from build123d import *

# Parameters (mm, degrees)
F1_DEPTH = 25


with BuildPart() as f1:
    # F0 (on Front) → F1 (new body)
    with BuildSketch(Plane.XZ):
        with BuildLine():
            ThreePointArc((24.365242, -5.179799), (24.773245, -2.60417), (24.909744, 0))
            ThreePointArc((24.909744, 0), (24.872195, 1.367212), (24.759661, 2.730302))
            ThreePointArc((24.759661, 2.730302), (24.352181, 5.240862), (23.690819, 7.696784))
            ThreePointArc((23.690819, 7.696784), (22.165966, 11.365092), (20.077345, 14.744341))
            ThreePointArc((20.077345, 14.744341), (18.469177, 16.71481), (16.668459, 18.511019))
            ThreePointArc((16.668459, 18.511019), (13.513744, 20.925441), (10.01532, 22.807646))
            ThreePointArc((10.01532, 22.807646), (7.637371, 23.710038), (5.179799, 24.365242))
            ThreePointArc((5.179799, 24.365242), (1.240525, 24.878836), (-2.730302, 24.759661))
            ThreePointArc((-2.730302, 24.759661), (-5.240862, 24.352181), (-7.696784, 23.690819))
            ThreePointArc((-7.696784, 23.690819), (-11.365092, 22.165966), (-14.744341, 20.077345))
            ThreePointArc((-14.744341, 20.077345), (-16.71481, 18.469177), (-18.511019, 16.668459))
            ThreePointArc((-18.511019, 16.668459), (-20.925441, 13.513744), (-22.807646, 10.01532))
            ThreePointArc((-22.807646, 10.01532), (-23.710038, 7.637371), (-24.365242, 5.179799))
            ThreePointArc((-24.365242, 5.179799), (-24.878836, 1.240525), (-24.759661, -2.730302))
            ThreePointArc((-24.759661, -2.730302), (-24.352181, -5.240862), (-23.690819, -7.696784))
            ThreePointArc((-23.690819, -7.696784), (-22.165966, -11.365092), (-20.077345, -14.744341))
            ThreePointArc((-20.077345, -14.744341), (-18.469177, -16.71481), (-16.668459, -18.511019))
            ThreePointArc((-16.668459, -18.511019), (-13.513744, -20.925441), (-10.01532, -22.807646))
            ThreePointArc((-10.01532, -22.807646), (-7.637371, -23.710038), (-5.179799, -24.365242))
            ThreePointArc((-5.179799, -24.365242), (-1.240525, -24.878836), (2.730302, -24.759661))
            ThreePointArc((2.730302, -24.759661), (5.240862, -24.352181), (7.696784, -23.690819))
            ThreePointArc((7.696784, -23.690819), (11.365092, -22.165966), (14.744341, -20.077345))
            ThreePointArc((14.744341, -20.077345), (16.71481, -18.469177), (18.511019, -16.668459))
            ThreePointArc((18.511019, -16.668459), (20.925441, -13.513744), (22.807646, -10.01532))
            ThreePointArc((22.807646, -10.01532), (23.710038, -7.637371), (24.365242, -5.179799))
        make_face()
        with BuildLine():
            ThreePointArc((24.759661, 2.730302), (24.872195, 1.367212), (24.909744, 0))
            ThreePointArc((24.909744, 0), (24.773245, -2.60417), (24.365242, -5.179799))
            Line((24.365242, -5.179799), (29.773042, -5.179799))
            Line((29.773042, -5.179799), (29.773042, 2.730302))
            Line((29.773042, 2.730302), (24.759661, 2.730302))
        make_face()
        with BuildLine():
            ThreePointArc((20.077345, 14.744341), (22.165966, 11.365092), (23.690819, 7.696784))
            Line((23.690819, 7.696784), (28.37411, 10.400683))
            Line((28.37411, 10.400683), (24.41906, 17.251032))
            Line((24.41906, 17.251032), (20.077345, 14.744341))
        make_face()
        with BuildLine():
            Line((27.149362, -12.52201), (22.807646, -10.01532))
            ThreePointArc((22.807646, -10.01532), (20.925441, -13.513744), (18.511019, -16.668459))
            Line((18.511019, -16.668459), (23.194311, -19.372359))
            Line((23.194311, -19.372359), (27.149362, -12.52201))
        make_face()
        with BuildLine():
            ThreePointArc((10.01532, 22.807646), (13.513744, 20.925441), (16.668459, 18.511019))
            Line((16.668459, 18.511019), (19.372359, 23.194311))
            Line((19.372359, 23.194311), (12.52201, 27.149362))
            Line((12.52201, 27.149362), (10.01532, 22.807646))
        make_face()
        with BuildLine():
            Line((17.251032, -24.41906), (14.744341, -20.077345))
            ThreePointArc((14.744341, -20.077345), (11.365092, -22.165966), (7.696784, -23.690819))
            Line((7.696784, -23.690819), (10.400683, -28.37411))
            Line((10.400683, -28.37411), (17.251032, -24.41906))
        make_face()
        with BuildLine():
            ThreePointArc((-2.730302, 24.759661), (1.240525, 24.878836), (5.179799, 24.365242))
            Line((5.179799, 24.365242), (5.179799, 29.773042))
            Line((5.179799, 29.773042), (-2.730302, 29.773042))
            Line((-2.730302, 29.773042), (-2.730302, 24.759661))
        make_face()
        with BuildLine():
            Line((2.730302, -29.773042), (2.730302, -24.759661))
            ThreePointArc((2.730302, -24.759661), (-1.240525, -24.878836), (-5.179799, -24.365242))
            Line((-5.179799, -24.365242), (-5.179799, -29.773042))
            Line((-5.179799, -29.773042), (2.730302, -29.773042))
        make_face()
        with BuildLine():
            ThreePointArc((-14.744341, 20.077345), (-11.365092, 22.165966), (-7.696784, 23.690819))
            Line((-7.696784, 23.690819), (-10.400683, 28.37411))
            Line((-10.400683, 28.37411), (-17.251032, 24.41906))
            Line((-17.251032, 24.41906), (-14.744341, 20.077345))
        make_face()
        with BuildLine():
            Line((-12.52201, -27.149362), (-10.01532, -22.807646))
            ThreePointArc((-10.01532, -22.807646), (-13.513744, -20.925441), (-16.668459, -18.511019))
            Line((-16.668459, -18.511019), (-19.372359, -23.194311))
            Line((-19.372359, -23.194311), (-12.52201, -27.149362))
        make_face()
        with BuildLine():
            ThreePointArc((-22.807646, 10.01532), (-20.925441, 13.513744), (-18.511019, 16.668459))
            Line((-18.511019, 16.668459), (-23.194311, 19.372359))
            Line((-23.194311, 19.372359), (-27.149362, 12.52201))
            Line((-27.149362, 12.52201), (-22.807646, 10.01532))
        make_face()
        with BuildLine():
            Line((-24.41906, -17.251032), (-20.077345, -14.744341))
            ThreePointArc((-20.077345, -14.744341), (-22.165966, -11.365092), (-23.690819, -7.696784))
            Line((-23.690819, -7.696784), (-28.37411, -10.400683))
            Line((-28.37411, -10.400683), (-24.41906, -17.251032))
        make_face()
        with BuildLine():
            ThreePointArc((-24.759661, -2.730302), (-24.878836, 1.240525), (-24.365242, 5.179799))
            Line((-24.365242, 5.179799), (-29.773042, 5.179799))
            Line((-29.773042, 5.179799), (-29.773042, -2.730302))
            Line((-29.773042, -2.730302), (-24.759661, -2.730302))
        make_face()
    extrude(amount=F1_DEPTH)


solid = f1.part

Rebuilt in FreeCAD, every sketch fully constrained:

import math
import FreeCAD as App
import Part
import Sketcher
from FreeCAD import Vector
Q = App.Units.Quantity

doc = App.newDocument("Part")
body = doc.addObject("PartDesign::Body", "Body")

# Sketch on XZ plane
sketch1 = body.newObject("Sketcher::SketchObject", "Sketch")
sketch1.AttachmentSupport = (doc.getObject("XZ_Plane"), [""])
sketch1.MapMode = "FlatFace"
sketch1.addGeometry([
    Part.ArcOfCircle(Part.Circle(Vector(-0.000081, -0.000015, 0), Vector(0, 0, 1), 24.909826), math.radians(6.29272), math.radians(17.99816)),  # 0
    Part.LineSegment(Vector(23.690819, 7.696784, 0), Vector(28.37411, 10.400683, 0)),  # 1
    Part.LineSegment(Vector(28.37411, 10.400683, 0), Vector(24.41906, 17.251032, 0)),  # 2
    Part.LineSegment(Vector(24.41906, 17.251032, 0), Vector(20.077345, 14.744341, 0)),  # 3
    Part.ArcOfCircle(Part.Circle(Vector(0.000032, 0.000026, 0), Vector(0, 0, 1), 24.909704), math.radians(36.292701), math.radians(47.998199)),  # 4
    Part.LineSegment(Vector(16.668459, 18.511019, 0), Vector(19.372359, 23.194311, 0)),  # 5
    Part.LineSegment(Vector(19.372359, 23.194311, 0), Vector(12.52201, 27.149362, 0)),  # 6
    Part.LineSegment(Vector(12.52201, 27.149362, 0), Vector(10.01532, 22.807646, 0)),  # 7
    Part.ArcOfCircle(Part.Circle(Vector(-0.000005, -0.00002, 0), Vector(0, 0, 1), 24.909764), math.radians(66.292714), math.radians(77.998183)),  # 8
    Part.LineSegment(Vector(5.179799, 24.365242, 0), Vector(5.179799, 29.773042, 0)),  # 9
    Part.LineSegment(Vector(5.179799, 29.773042, 0), Vector(-2.730302, 29.773042, 0)),  # 10
    Part.LineSegment(Vector(-2.730302, 29.773042, 0), Vector(-2.730302, 24.759661, 0)),  # 11
    Part.ArcOfCircle(Part.Circle(Vector(0.000015, -0.000081, 0), Vector(0, 0, 1), 24.909826), math.radians(96.29272), math.radians(107.99816)),  # 12
    Part.LineSegment(Vector(-7.696784, 23.690819, 0), Vector(-10.400683, 28.37411, 0)),  # 13
    Part.LineSegment(Vector(-10.400683, 28.37411, 0), Vector(-17.251032, 24.41906, 0)),  # 14
    Part.LineSegment(Vector(-17.251032, 24.41906, 0), Vector(-14.744341, 20.077345, 0)),  # 15
    Part.ArcOfCircle(Part.Circle(Vector(-0.000026, 0.000032, 0), Vector(0, 0, 1), 24.909704), math.radians(126.292701), math.radians(137.998199)),  # 16
    Part.LineSegment(Vector(-18.511019, 16.668459, 0), Vector(-23.194311, 19.372359, 0)),  # 17
    Part.LineSegment(Vector(-23.194311, 19.372359, 0), Vector(-27.149362, 12.52201, 0)),  # 18
    Part.LineSegment(Vector(-27.149362, 12.52201, 0), Vector(-22.807646, 10.01532, 0)),  # 19
    Part.ArcOfCircle(Part.Circle(Vector(0.00002, -0.000005, 0), Vector(0, 0, 1), 24.909764), math.radians(156.292714), math.radians(167.998183)),  # 20
    Part.LineSegment(Vector(-24.365242, 5.179799, 0), Vector(-29.773042, 5.179799, 0)),  # 21
    Part.LineSegment(Vector(-29.773042, 5.179799, 0), Vector(-29.773042, -2.730302, 0)),  # 22
    Part.LineSegment(Vector(-29.773042, -2.730302, 0), Vector(-24.759661, -2.730302, 0)),  # 23
    Part.ArcOfCircle(Part.Circle(Vector(0.000081, 0.000015, 0), Vector(0, 0, 1), 24.909826), math.radians(-173.70728), math.radians(-162.00184)),  # 24
    Part.LineSegment(Vector(-23.690819, -7.696784, 0), Vector(-28.37411, -10.400683, 0)),  # 25
    Part.LineSegment(Vector(-28.37411, -10.400683, 0), Vector(-24.41906, -17.251032, 0)),  # 26
    Part.LineSegment(Vector(-24.41906, -17.251032, 0), Vector(-20.077345, -14.744341, 0)),  # 27
    Part.ArcOfCircle(Part.Circle(Vector(-0.000032, -0.000026, 0), Vector(0, 0, 1), 24.909704), math.radians(-143.707299), math.radians(-132.001801)),  # 28
    Part.LineSegment(Vector(-16.668459, -18.511019, 0), Vector(-19.372359, -23.194311, 0)),  # 29
    Part.LineSegment(Vector(-19.372359, -23.194311, 0), Vector(-12.52201, -27.149362, 0)),  # 30
    Part.LineSegment(Vector(-12.52201, -27.149362, 0), Vector(-10.01532, -22.807646, 0)),  # 31
    Part.ArcOfCircle(Part.Circle(Vector(0.000005, 0.00002, 0), Vector(0, 0, 1), 24.909764), math.radians(-113.707286), math.radians(-102.001817)),  # 32
    Part.LineSegment(Vector(-5.179799, -24.365242, 0), Vector(-5.179799, -29.773042, 0)),  # 33
    Part.LineSegment(Vector(-5.179799, -29.773042, 0), Vector(2.730302, -29.773042, 0)),  # 34
    Part.LineSegment(Vector(2.730302, -29.773042, 0), Vector(2.730302, -24.759661, 0)),  # 35
    Part.ArcOfCircle(Part.Circle(Vector(-0.000015, 0.000081, 0), Vector(0, 0, 1), 24.909826), math.radians(-83.70728), math.radians(-72.00184)),  # 36
    Part.LineSegment(Vector(7.696784, -23.690819, 0), Vector(10.400683, -28.37411, 0)),  # 37
    Part.LineSegment(Vector(10.400683, -28.37411, 0), Vector(17.251032, -24.41906, 0)),  # 38
    Part.LineSegment(Vector(17.251032, -24.41906, 0), Vector(14.744341, -20.077345, 0)),  # 39
    Part.ArcOfCircle(Part.Circle(Vector(0.000026, -0.000032, 0), Vector(0, 0, 1), 24.909704), math.radians(-53.707299), math.radians(-42.001801)),  # 40
    Part.LineSegment(Vector(18.511019, -16.668459, 0), Vector(23.194311, -19.372359, 0)),  # 41
    Part.LineSegment(Vector(23.194311, -19.372359, 0), Vector(27.149362, -12.52201, 0)),  # 42
    Part.LineSegment(Vector(27.149362, -12.52201, 0), Vector(22.807646, -10.01532, 0)),  # 43
    Part.ArcOfCircle(Part.Circle(Vector(-0.00002, 0.000005, 0), Vector(0, 0, 1), 24.909764), math.radians(-23.707286), math.radians(-12.001817)),  # 44
    Part.LineSegment(Vector(24.365242, -5.179799, 0), Vector(29.773042, -5.179799, 0)),  # 45
    Part.LineSegment(Vector(29.773042, -5.179799, 0), Vector(29.773042, 2.730302, 0)),  # 46
    Part.LineSegment(Vector(29.773042, 2.730302, 0), Vector(24.759661, 2.730302, 0)),  # 47
], False)
sketch1.addConstraint([
    Sketcher.Constraint("Coincident", 0, 2, 1, 1),
    Sketcher.Constraint("Coincident", 1, 2, 2, 1),
    Sketcher.Constraint("Coincident", 2, 2, 3, 1),
    Sketcher.Constraint("Coincident", 3, 2, 4, 1),
    Sketcher.Constraint("Coincident", 4, 2, 5, 1),
    Sketcher.Constraint("Coincident", 5, 2, 6, 1),
    Sketcher.Constraint("Coincident", 6, 2, 7, 1),
    Sketcher.Constraint("Coincident", 7, 2, 8, 1),
    Sketcher.Constraint("Coincident", 8, 2, 9, 1),
    Sketcher.Constraint("Coincident", 9, 2, 10, 1),
    Sketcher.Constraint("Coincident", 10, 2, 11, 1),
    Sketcher.Constraint("Coincident", 11, 2, 12, 1),
    Sketcher.Constraint("Coincident", 12, 2, 13, 1),
    Sketcher.Constraint("Coincident", 13, 2, 14, 1),
    Sketcher.Constraint("Coincident", 14, 2, 15, 1),
    Sketcher.Constraint("Coincident", 15, 2, 16, 1),
    Sketcher.Constraint("Coincident", 16, 2, 17, 1),
    Sketcher.Constraint("Coincident", 17, 2, 18, 1),
    Sketcher.Constraint("Coincident", 18, 2, 19, 1),
    Sketcher.Constraint("Coincident", 19, 2, 20, 1),
    Sketcher.Constraint("Coincident", 20, 2, 21, 1),
    Sketcher.Constraint("Coincident", 21, 2, 22, 1),
    Sketcher.Constraint("Coincident", 22, 2, 23, 1),
    Sketcher.Constraint("Coincident", 23, 2, 24, 1),
    Sketcher.Constraint("Coincident", 24, 2, 25, 1),
    Sketcher.Constraint("Coincident", 25, 2, 26, 1),
    Sketcher.Constraint("Coincident", 26, 2, 27, 1),
    Sketcher.Constraint("Coincident", 27, 2, 28, 1),
    Sketcher.Constraint("Coincident", 28, 2, 29, 1),
    Sketcher.Constraint("Coincident", 29, 2, 30, 1),
    Sketcher.Constraint("Coincident", 30, 2, 31, 1),
    Sketcher.Constraint("Coincident", 31, 2, 32, 1),
    Sketcher.Constraint("Coincident", 32, 2, 33, 1),
    Sketcher.Constraint("Coincident", 33, 2, 34, 1),
    Sketcher.Constraint("Coincident", 34, 2, 35, 1),
    Sketcher.Constraint("Coincident", 35, 2, 36, 1),
    Sketcher.Constraint("Coincident", 36, 2, 37, 1),
    Sketcher.Constraint("Coincident", 37, 2, 38, 1),
    Sketcher.Constraint("Coincident", 38, 2, 39, 1),
    Sketcher.Constraint("Coincident", 39, 2, 40, 1),
    Sketcher.Constraint("Coincident", 40, 2, 41, 1),
    Sketcher.Constraint("Coincident", 41, 2, 42, 1),
    Sketcher.Constraint("Coincident", 42, 2, 43, 1),
    Sketcher.Constraint("Coincident", 43, 2, 44, 1),
    Sketcher.Constraint("Coincident", 44, 2, 45, 1),
    Sketcher.Constraint("Coincident", 45, 2, 46, 1),
    Sketcher.Constraint("Coincident", 46, 2, 47, 1),
    Sketcher.Constraint("Coincident", 47, 2, 0, 1),
    Sketcher.Constraint("Vertical", 9),
    Sketcher.Constraint("Horizontal", 10),
    Sketcher.Constraint("Vertical", 11),
    Sketcher.Constraint("Horizontal", 21),
    Sketcher.Constraint("Vertical", 22),
    Sketcher.Constraint("Horizontal", 23),
    Sketcher.Constraint("Vertical", 33),
    Sketcher.Constraint("Horizontal", 34),
    Sketcher.Constraint("Vertical", 35),
    Sketcher.Constraint("Horizontal", 45),
    Sketcher.Constraint("Vertical", 46),
    Sketcher.Constraint("Horizontal", 47),
    Sketcher.Constraint("Equal", 0, 12),
    Sketcher.Constraint("Equal", 4, 16),
    Sketcher.Constraint("Equal", 8, 20),
    Sketcher.Constraint("Equal", 12, 24),
    Sketcher.Constraint("Equal", 16, 28),
    Sketcher.Constraint("Equal", 20, 32),
    Sketcher.Constraint("Equal", 24, 36),
    Sketcher.Constraint("Equal", 28, 40),
    Sketcher.Constraint("Equal", 32, 44),
    Sketcher.Constraint("Symmetric", 0, 3, 24, 3, -1, 1),
    Sketcher.Constraint("Symmetric", 4, 3, 28, 3, -1, 1),
    Sketcher.Constraint("Symmetric", 8, 3, 32, 3, -1, 1),
    Sketcher.Constraint("Symmetric", 12, 3, 36, 3, -1, 1),
    Sketcher.Constraint("Symmetric", 16, 3, 40, 3, -1, 1),
    Sketcher.Constraint("Symmetric", 20, 3, 44, 3, -1, 1),
    Sketcher.Constraint("Symmetric", 1, 2, 25, 2, -1, 1),
    Sketcher.Constraint("Symmetric", 2, 2, 26, 2, -1, 1),
    Sketcher.Constraint("Symmetric", 5, 2, 29, 2, -1, 1),
    Sketcher.Constraint("Symmetric", 6, 2, 30, 2, -1, 1),
    Sketcher.Constraint("Symmetric", 9, 2, 33, 2, -1, 1),
    Sketcher.Constraint("Symmetric", 13, 2, 37, 2, -1, 1),
    Sketcher.Constraint("Symmetric", 14, 2, 38, 2, -1, 1),
    Sketcher.Constraint("Symmetric", 17, 2, 41, 2, -1, 1),
    Sketcher.Constraint("Symmetric", 18, 2, 42, 2, -1, 1),
    Sketcher.Constraint("Symmetric", 21, 2, 45, 2, -1, 1),
    Sketcher.Constraint("Symmetric", 4, 3, 16, 3, -2),
    Sketcher.Constraint("Perpendicular", 1, 2),
    Sketcher.Constraint("Perpendicular", 2, 3),
    Sketcher.Constraint("Perpendicular", 5, 6),
    Sketcher.Constraint("Perpendicular", 6, 7),
    Sketcher.Constraint("Perpendicular", 3, 13),
    Sketcher.Constraint("Perpendicular", 13, 14),
    Sketcher.Constraint("Perpendicular", 14, 15),
    Sketcher.Constraint("Perpendicular", 7, 17),
    Sketcher.Constraint("Perpendicular", 17, 18),
    Sketcher.Constraint("Perpendicular", 18, 19),
    Sketcher.Constraint("Perpendicular", 15, 25),
    Sketcher.Constraint("Perpendicular", 26, 27),
    Sketcher.Constraint("Perpendicular", 19, 29),
    Sketcher.Constraint("Perpendicular", 30, 31),
    Sketcher.Constraint("Perpendicular", 27, 37),
    Sketcher.Constraint("Perpendicular", 38, 39),
    Sketcher.Constraint("Perpendicular", 31, 41),
    Sketcher.Constraint("Perpendicular", 42, 43),
    Sketcher.Constraint("Equal", 10, 34),
    Sketcher.Constraint("Equal", 23, 47),
    Sketcher.Constraint("Equal", 45, 9),
    Sketcher.Constraint("Equal", 47, 11),
    Sketcher.Constraint("Equal", 34, 22),
    Sketcher.Constraint("Equal", 1, 5),
    Sketcher.Constraint("Equal", 2, 6),
    Sketcher.Constraint("Equal", 3, 7),
    Sketcher.Constraint("Equal", 5, 13),
    Sketcher.Constraint("Equal", 6, 14),
    Sketcher.Constraint("Equal", 7, 15),
    Sketcher.Constraint("Equal", 13, 17),
    Sketcher.Constraint("Equal", 14, 18),
    Sketcher.Constraint("Equal", 15, 19),
    Sketcher.Constraint("Angle", 1, Q("29.999997 deg")),
    Sketcher.Constraint("Angle", 5, Q("59.999999 deg")),
    Sketcher.Constraint("DistanceX", 10, 2, 10, 1, 7.910101),
    Sketcher.Constraint("DistanceX", 21, 2, 21, 1, 5.4078),
    Sketcher.Constraint("Radius", 0, 24.909826),
    Sketcher.Constraint("Radius", 4, 24.909704),
    Sketcher.Constraint("Radius", 8, 24.909764),
    Sketcher.Constraint("Distance", 1, 5.407798),
    Sketcher.Constraint("Distance", 2, 7.910101),
    Sketcher.Constraint("DistanceX", 23, 1, 23, 2, 5.013381),
    Sketcher.Constraint("DistanceX", -1, 1, 8, 2, 5.179799),
    Sketcher.Constraint("DistanceY", -1, 1, 20, 2, 5.179799),
    Sketcher.Constraint("DistanceX", 0, 3, 20, 3, 0.000101),
    Sketcher.Constraint("DistanceY", 8, 3, 36, 3, 0.000101),
    Sketcher.Constraint("DistanceX", 20, 3, 0, 2, 23.690799),
    Sketcher.Constraint("DistanceY", 36, 3, 1, 2, 10.400602),
    Sketcher.Constraint("DistanceX", 4, 2, 2, 2, 7.750601),
    Sketcher.Constraint("DistanceY", 3, 2, 8, 2, 9.620901),
    Sketcher.Constraint("DistanceY", 11, 2, 6, 2, 2.389701),
    Sketcher.Constraint("DistanceY", 14, 2, 11, 2, 0.340601),
    Sketcher.Constraint("DistanceY", 16, 2, 14, 2, 7.750601),
])
pad1 = body.newObject("PartDesign::Pad", "Pad")
pad1.Profile = sketch1
pad1.Length = 25

doc.recompute()
